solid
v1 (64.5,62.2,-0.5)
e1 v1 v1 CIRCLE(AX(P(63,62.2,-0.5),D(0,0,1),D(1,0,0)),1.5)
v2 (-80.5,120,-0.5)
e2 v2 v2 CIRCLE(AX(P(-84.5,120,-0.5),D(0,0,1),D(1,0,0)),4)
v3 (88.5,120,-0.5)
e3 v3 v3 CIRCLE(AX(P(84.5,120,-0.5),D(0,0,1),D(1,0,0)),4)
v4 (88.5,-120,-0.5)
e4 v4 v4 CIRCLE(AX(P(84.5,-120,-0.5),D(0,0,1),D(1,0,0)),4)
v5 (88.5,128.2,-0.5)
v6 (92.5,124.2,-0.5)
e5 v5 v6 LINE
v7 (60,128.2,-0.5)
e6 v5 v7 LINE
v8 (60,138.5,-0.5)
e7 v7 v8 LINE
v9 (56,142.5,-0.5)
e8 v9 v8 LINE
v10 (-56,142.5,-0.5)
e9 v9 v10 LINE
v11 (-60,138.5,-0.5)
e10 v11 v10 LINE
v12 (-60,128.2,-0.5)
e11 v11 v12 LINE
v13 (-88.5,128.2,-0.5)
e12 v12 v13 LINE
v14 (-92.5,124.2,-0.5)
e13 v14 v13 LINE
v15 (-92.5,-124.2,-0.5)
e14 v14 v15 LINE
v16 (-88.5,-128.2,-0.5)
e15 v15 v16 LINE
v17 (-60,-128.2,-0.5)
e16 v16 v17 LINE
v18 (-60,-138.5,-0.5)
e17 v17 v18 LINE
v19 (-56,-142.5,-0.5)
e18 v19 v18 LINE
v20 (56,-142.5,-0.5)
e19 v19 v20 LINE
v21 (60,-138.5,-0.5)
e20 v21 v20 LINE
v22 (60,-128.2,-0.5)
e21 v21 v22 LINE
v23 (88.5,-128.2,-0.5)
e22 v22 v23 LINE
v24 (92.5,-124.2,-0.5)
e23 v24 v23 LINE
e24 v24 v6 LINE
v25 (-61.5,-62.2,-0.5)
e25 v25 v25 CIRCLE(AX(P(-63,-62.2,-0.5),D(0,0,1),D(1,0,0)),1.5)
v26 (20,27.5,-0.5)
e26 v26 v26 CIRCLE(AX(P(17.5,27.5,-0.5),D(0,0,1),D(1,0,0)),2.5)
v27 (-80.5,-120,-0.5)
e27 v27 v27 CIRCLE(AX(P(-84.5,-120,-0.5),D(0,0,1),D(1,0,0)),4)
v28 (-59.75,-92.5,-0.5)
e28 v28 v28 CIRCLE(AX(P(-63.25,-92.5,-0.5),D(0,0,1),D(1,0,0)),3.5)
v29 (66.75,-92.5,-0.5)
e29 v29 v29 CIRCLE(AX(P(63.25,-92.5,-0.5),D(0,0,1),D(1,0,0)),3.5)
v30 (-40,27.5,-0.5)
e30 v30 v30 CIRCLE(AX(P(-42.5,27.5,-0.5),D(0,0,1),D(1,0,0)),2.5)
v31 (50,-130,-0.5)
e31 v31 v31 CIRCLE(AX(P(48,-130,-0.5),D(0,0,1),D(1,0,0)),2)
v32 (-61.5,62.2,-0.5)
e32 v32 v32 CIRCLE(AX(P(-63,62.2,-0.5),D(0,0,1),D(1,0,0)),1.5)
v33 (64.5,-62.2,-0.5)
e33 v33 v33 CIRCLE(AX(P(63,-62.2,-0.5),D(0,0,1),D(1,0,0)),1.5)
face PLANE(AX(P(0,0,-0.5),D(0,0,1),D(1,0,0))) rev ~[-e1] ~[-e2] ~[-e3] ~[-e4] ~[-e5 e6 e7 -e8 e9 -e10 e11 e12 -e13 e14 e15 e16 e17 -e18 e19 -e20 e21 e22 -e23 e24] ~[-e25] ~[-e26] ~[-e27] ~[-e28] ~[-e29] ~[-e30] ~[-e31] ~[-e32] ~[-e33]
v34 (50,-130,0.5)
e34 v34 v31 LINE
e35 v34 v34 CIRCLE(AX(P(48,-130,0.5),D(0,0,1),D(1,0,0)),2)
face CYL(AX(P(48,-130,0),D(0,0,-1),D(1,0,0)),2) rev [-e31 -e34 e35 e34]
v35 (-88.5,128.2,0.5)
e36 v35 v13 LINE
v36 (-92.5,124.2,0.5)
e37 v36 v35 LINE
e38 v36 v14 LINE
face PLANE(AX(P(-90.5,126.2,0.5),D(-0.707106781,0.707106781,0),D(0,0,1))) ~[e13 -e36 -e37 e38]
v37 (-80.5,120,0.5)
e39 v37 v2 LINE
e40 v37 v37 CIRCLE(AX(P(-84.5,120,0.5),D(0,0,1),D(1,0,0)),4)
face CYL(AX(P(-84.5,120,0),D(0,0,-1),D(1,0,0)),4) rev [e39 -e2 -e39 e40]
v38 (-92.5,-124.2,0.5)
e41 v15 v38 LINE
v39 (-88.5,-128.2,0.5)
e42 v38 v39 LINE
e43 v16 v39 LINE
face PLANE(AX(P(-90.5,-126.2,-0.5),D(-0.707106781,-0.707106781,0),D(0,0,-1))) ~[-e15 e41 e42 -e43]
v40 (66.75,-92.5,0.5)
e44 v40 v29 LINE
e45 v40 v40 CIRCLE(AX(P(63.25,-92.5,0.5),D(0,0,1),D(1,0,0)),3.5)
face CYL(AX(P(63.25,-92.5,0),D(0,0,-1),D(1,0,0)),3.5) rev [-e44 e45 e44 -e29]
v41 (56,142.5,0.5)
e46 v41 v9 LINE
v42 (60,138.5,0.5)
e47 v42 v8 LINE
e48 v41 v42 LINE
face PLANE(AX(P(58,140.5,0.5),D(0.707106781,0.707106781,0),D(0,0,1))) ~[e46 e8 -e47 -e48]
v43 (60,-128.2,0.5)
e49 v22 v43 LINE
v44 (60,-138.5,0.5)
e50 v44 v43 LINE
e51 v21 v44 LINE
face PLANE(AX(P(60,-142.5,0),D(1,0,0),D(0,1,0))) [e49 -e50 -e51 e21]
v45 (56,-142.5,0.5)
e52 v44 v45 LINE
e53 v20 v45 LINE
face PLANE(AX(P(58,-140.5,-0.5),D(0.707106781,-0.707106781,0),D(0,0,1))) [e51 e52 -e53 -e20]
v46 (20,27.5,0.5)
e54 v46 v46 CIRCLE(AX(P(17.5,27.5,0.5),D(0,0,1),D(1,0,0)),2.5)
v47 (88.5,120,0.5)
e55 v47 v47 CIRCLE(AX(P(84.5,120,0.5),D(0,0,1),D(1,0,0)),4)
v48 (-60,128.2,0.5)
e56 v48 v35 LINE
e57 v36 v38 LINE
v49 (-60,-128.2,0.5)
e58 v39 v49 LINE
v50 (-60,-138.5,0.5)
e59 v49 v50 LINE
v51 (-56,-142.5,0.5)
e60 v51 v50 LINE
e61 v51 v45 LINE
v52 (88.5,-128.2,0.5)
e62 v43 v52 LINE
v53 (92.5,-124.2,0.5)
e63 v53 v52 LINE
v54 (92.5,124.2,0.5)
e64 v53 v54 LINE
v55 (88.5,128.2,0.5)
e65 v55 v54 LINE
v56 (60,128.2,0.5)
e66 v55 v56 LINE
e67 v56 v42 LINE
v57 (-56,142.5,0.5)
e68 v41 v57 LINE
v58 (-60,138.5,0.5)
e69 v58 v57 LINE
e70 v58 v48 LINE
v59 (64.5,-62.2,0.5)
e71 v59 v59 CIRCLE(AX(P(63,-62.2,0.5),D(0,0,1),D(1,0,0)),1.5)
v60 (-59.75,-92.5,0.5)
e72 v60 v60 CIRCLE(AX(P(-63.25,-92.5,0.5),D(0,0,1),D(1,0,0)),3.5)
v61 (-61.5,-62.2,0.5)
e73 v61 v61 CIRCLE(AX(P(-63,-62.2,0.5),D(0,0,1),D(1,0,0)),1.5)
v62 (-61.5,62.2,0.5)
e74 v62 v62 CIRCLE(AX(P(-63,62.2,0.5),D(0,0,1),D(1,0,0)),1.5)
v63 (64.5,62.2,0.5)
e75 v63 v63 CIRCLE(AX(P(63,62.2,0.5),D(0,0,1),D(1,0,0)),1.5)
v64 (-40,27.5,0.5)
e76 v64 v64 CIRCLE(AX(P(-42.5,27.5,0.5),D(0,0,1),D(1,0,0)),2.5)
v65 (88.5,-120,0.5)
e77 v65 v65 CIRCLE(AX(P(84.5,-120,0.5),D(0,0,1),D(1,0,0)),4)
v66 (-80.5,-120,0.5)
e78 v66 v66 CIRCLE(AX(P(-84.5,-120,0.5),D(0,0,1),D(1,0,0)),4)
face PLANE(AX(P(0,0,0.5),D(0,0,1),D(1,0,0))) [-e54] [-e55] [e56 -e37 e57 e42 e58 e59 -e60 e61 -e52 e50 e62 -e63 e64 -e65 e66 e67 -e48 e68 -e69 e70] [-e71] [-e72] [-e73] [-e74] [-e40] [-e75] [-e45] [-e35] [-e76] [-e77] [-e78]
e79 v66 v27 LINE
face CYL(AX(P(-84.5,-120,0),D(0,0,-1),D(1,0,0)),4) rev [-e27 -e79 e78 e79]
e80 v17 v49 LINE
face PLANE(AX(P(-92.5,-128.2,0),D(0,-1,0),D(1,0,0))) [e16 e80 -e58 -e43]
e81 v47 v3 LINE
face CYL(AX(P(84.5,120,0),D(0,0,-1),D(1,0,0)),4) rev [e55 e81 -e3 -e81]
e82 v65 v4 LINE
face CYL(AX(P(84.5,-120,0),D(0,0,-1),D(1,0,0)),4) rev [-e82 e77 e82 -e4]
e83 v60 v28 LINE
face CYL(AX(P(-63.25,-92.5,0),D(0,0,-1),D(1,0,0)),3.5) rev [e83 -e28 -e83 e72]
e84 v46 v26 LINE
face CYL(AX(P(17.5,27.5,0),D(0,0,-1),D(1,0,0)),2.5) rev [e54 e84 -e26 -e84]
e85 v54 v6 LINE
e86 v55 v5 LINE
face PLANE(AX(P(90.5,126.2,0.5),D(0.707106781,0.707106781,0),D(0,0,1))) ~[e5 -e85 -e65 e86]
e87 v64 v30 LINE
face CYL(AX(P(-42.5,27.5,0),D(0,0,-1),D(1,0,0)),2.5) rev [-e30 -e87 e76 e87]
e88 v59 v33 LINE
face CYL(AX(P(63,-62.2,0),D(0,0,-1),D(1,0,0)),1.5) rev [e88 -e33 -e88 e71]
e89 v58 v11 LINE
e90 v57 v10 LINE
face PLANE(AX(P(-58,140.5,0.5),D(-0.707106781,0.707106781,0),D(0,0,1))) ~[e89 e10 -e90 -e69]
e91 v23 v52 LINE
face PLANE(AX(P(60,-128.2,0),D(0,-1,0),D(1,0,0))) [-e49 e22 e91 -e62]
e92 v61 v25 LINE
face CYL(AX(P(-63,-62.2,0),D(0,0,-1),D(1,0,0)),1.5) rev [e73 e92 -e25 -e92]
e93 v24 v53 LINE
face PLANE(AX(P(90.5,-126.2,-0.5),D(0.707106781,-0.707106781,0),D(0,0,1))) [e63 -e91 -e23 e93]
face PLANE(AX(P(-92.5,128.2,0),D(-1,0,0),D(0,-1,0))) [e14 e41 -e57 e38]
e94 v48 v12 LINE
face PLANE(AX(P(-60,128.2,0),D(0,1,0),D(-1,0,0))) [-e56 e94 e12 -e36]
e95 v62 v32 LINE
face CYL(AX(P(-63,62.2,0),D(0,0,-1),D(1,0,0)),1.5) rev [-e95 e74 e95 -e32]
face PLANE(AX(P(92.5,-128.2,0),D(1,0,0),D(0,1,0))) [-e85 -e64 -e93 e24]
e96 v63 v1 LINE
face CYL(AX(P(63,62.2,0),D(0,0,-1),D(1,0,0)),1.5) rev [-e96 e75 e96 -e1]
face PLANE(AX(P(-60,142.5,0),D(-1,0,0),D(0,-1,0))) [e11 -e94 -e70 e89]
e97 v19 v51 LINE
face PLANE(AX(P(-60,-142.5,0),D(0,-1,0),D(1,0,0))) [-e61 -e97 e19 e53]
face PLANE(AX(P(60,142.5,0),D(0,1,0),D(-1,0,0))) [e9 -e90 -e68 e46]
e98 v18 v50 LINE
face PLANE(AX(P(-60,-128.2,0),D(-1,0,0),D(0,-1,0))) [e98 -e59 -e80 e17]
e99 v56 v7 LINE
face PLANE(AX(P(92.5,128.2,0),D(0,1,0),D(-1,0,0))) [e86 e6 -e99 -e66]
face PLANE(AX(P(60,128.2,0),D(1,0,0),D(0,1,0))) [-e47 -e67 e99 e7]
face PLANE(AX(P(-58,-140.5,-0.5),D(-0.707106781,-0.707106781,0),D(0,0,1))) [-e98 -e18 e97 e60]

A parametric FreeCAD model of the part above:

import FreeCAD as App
import Part
import Sketcher
from FreeCAD import Vector
Q = App.Units.Quantity


def edges_at(feature, points):
    """Names of the edges that pass closest to the given points."""
    edges = feature.Shape.Edges
    near = lambda p: min(range(len(edges)), key=lambda i: edges[i].distToShape(Part.Vertex(*p))[0])
    return sorted({f"Edge{near(p) + 1}" for p in points})


def add_polygon(sketch, points):
    """Adds a closed chain of lines whose ends are joined by coincident constraints."""
    first, n = sketch.GeometryCount, len(points)
    for a, b in zip(points, points[1:] + points[:1]):
        sketch.addGeometry(Part.LineSegment(App.Vector(*a, 0), App.Vector(*b, 0)), False)
    for i in range(n):
        sketch.addConstraint(Sketcher.Constraint("Coincident", first + i, 2, first + (i + 1) % n, 1))

doc = App.newDocument("Part")
params = doc.addObject("Spreadsheet::Sheet", "Params")
for row, (alias, value) in enumerate([
    ("sketch1_diameter", "8 mm"),
    ("sketch1_diameter2", "7 mm"),
    ("sketch1_diameter3", "3 mm"),
    ("sketch1_diameter4", "4 mm"),
    ("sketch1_diameter5", "5 mm"),
    ("pad1_length", "1 mm"),
    ("chamfer_size", "4 mm"),
], start=1):
    params.set(f"A{row}", alias)
    params.set(f"B{row}", "=" + value)
    params.setAlias(f"B{row}", alias)

body = doc.addObject("PartDesign::Body", "Body")

sketch1 = doc.addObject("Sketcher::SketchObject", "Sketch")
body.addObject(sketch1)
sketch1.AttachmentSupport = (doc.XY_Plane, [""])
sketch1.MapMode = "FlatFace"
add_polygon(sketch1, [(-92.5, 128.2), (-92.5, -128.2), (-60, -128.2), (-60, -142.5), (60, -142.5), (60, -128.2), (92.5, -128.2), (92.5, 128.2), (60, 128.2), (60, 142.5), (-60, 142.5), (-60, 128.2)])
sketch1.addGeometry(Part.Circle(Vector(-84.5, -120, 0), Vector(0, 0, 1), 4), False)
sketch1.addGeometry(Part.Circle(Vector(-63.2, -92.5, 0), Vector(0, 0, 1), 3.5), False)
sketch1.addGeometry(Part.Circle(Vector(-63, -62.2, 0), Vector(0, 0, 1), 1.5), False)
sketch1.addGeometry(Part.Circle(Vector(48, -130, 0), Vector(0, 0, 1), 2), False)
sketch1.addGeometry(Part.Circle(Vector(84.5, -120, 0), Vector(0, 0, 1), 4), False)
sketch1.addGeometry(Part.Circle(Vector(63.2, -92.5, 0), Vector(0, 0, 1), 3.5), False)
sketch1.addGeometry(Part.Circle(Vector(63, -62.2, 0), Vector(0, 0, 1), 1.5), False)
sketch1.addGeometry(Part.Circle(Vector(-42.5, 27.5, 0), Vector(0, 0, 1), 2.5), False)
sketch1.addGeometry(Part.Circle(Vector(-63, 62.2, 0), Vector(0, 0, 1), 1.5), False)
sketch1.addGeometry(Part.Circle(Vector(-84.5, 120, 0), Vector(0, 0, 1), 4), False)
sketch1.addGeometry(Part.Circle(Vector(17.5, 27.5, 0), Vector(0, 0, 1), 2.5), False)
sketch1.addGeometry(Part.Circle(Vector(63, 62.2, 0), Vector(0, 0, 1), 1.5), False)
sketch1.addGeometry(Part.Circle(Vector(84.5, 120, 0), Vector(0, 0, 1), 4), False)
sketch1.addConstraint([
    Sketcher.Constraint("Vertical", 0),
    Sketcher.Constraint("Horizontal", 1),
    Sketcher.Constraint("Vertical", 2),
    Sketcher.Constraint("Horizontal", 3),
    Sketcher.Constraint("Vertical", 4),
    Sketcher.Constraint("Horizontal", 5),
    Sketcher.Constraint("Vertical", 6),
    Sketcher.Constraint("Horizontal", 7),
    Sketcher.Constraint("Vertical", 8),
    Sketcher.Constraint("Horizontal", 9),
    Sketcher.Constraint("Vertical", 10),
    Sketcher.Constraint("Horizontal", 11),
    Sketcher.Constraint("Equal", 12, 16),
    Sketcher.Constraint("Equal", 13, 17),
    Sketcher.Constraint("Equal", 14, 18),
    Sketcher.Constraint("Equal", 18, 20),
    Sketcher.Constraint("Equal", 16, 21),
    Sketcher.Constraint("Equal", 19, 22),
    Sketcher.Constraint("Equal", 20, 23),
    Sketcher.Constraint("Equal", 21, 24),
    Sketcher.Constraint("Symmetric", 18, 3, 20, 3, -1, 1),
    Sketcher.Constraint("Symmetric", 16, 3, 21, 3, -1, 1),
    Sketcher.Constraint("Symmetric", 14, 3, 23, 3, -1, 1),
    Sketcher.Constraint("Symmetric", 12, 3, 24, 3, -1, 1),
    Sketcher.Constraint("Symmetric", 0, 2, 6, 2, -1, 1),
    Sketcher.Constraint("Symmetric", 2, 2, 8, 2, -1, 1),
    Sketcher.Constraint("Symmetric", 4, 2, 10, 2, -1, 1),
    Sketcher.Constraint("Symmetric", 12, 3, 16, 3, -2),
    Sketcher.Constraint("Symmetric", 13, 3, 17, 3, -2),
    Sketcher.Constraint("Symmetric", 14, 3, 18, 3, -2),
    Sketcher.Constraint("Symmetric", 1, 2, 4, 2, -2),
    Sketcher.Constraint("Horizontal", 19, 3, 22, 3),
    Sketcher.Constraint("Diameter", 12, Q("8 mm")),
    Sketcher.Constraint("Diameter", 13, Q("7 mm")),
    Sketcher.Constraint("Diameter", 14, Q("3 mm")),
    Sketcher.Constraint("Diameter", 15, Q("4 mm")),
    Sketcher.Constraint("Diameter", 19, Q("5 mm")),
    Sketcher.Constraint("DistanceX", 3, 1, 3, 2, Q("120 mm")),
    Sketcher.Constraint("DistanceX", 1, 1, 1, 2, Q("32.5 mm")),
    Sketcher.Constraint("DistanceY", 0, 2, 0, 1, Q("256.4 mm")),
    Sketcher.Constraint("DistanceY", 2, 2, 2, 1, Q("14.3 mm")),
    Sketcher.Constraint("DistanceY", 12, 3, -1, 1, Q("120 mm")),
    Sketcher.Constraint("DistanceX", 14, 3, -1, 1, Q("63 mm")),
    Sketcher.Constraint("DistanceX", -1, 1, 15, 3, Q("48 mm")),
    Sketcher.Constraint("DistanceY", 15, 3, -1, 1, Q("130 mm")),
    Sketcher.Constraint("DistanceX", 12, 3, 16, 3, Q("169 mm")),
    Sketcher.Constraint("DistanceY", 13, 3, 19, 3, Q("120 mm")),
    Sketcher.Constraint("DistanceX", 12, 3, 19, 3, Q("42 mm")),
    Sketcher.Constraint("DistanceX", 19, 3, 22, 3, Q("60 mm")),
    Sketcher.Constraint("DistanceY", 0, 2, 14, 3, Q("66 mm")),
    Sketcher.Constraint("DistanceY", 2, 2, 13, 3, Q("50 mm")),
    Sketcher.Constraint("DistanceX", 13, 3, 17, 3, Q("126.5 mm")),
])
sketch1.setExpression("Constraints[44]", "Params.sketch1_diameter")
sketch1.setExpression("Constraints[45]", "Params.sketch1_diameter2")
sketch1.setExpression("Constraints[46]", "Params.sketch1_diameter3")
sketch1.setExpression("Constraints[47]", "Params.sketch1_diameter4")
sketch1.setExpression("Constraints[48]", "Params.sketch1_diameter5")
pad1 = doc.addObject("PartDesign::Pad", "Pad")
body.addObject(pad1)
pad1.Profile = sketch1
pad1.setExpression("Length", "Params.pad1_length")
pad1.Midplane = True
doc.recompute()

chamfer = doc.addObject("PartDesign::Chamfer", "Chamfer")
body.addObject(chamfer)
chamfer.Base = (pad1, edges_at(pad1, [
    (-92.5, 128.2, 0),
    (-60, 142.5, 0),
    (60, 142.5, 0),
    (92.5, 128.2, 0),
    (92.5, -128.2, 0),
    (60, -142.5, 0),
    (-60, -142.5, 0),
    (-92.5, -128.2, 0),
]))
chamfer.setExpression("Size", "Params.chamfer_size")

doc.recompute()
